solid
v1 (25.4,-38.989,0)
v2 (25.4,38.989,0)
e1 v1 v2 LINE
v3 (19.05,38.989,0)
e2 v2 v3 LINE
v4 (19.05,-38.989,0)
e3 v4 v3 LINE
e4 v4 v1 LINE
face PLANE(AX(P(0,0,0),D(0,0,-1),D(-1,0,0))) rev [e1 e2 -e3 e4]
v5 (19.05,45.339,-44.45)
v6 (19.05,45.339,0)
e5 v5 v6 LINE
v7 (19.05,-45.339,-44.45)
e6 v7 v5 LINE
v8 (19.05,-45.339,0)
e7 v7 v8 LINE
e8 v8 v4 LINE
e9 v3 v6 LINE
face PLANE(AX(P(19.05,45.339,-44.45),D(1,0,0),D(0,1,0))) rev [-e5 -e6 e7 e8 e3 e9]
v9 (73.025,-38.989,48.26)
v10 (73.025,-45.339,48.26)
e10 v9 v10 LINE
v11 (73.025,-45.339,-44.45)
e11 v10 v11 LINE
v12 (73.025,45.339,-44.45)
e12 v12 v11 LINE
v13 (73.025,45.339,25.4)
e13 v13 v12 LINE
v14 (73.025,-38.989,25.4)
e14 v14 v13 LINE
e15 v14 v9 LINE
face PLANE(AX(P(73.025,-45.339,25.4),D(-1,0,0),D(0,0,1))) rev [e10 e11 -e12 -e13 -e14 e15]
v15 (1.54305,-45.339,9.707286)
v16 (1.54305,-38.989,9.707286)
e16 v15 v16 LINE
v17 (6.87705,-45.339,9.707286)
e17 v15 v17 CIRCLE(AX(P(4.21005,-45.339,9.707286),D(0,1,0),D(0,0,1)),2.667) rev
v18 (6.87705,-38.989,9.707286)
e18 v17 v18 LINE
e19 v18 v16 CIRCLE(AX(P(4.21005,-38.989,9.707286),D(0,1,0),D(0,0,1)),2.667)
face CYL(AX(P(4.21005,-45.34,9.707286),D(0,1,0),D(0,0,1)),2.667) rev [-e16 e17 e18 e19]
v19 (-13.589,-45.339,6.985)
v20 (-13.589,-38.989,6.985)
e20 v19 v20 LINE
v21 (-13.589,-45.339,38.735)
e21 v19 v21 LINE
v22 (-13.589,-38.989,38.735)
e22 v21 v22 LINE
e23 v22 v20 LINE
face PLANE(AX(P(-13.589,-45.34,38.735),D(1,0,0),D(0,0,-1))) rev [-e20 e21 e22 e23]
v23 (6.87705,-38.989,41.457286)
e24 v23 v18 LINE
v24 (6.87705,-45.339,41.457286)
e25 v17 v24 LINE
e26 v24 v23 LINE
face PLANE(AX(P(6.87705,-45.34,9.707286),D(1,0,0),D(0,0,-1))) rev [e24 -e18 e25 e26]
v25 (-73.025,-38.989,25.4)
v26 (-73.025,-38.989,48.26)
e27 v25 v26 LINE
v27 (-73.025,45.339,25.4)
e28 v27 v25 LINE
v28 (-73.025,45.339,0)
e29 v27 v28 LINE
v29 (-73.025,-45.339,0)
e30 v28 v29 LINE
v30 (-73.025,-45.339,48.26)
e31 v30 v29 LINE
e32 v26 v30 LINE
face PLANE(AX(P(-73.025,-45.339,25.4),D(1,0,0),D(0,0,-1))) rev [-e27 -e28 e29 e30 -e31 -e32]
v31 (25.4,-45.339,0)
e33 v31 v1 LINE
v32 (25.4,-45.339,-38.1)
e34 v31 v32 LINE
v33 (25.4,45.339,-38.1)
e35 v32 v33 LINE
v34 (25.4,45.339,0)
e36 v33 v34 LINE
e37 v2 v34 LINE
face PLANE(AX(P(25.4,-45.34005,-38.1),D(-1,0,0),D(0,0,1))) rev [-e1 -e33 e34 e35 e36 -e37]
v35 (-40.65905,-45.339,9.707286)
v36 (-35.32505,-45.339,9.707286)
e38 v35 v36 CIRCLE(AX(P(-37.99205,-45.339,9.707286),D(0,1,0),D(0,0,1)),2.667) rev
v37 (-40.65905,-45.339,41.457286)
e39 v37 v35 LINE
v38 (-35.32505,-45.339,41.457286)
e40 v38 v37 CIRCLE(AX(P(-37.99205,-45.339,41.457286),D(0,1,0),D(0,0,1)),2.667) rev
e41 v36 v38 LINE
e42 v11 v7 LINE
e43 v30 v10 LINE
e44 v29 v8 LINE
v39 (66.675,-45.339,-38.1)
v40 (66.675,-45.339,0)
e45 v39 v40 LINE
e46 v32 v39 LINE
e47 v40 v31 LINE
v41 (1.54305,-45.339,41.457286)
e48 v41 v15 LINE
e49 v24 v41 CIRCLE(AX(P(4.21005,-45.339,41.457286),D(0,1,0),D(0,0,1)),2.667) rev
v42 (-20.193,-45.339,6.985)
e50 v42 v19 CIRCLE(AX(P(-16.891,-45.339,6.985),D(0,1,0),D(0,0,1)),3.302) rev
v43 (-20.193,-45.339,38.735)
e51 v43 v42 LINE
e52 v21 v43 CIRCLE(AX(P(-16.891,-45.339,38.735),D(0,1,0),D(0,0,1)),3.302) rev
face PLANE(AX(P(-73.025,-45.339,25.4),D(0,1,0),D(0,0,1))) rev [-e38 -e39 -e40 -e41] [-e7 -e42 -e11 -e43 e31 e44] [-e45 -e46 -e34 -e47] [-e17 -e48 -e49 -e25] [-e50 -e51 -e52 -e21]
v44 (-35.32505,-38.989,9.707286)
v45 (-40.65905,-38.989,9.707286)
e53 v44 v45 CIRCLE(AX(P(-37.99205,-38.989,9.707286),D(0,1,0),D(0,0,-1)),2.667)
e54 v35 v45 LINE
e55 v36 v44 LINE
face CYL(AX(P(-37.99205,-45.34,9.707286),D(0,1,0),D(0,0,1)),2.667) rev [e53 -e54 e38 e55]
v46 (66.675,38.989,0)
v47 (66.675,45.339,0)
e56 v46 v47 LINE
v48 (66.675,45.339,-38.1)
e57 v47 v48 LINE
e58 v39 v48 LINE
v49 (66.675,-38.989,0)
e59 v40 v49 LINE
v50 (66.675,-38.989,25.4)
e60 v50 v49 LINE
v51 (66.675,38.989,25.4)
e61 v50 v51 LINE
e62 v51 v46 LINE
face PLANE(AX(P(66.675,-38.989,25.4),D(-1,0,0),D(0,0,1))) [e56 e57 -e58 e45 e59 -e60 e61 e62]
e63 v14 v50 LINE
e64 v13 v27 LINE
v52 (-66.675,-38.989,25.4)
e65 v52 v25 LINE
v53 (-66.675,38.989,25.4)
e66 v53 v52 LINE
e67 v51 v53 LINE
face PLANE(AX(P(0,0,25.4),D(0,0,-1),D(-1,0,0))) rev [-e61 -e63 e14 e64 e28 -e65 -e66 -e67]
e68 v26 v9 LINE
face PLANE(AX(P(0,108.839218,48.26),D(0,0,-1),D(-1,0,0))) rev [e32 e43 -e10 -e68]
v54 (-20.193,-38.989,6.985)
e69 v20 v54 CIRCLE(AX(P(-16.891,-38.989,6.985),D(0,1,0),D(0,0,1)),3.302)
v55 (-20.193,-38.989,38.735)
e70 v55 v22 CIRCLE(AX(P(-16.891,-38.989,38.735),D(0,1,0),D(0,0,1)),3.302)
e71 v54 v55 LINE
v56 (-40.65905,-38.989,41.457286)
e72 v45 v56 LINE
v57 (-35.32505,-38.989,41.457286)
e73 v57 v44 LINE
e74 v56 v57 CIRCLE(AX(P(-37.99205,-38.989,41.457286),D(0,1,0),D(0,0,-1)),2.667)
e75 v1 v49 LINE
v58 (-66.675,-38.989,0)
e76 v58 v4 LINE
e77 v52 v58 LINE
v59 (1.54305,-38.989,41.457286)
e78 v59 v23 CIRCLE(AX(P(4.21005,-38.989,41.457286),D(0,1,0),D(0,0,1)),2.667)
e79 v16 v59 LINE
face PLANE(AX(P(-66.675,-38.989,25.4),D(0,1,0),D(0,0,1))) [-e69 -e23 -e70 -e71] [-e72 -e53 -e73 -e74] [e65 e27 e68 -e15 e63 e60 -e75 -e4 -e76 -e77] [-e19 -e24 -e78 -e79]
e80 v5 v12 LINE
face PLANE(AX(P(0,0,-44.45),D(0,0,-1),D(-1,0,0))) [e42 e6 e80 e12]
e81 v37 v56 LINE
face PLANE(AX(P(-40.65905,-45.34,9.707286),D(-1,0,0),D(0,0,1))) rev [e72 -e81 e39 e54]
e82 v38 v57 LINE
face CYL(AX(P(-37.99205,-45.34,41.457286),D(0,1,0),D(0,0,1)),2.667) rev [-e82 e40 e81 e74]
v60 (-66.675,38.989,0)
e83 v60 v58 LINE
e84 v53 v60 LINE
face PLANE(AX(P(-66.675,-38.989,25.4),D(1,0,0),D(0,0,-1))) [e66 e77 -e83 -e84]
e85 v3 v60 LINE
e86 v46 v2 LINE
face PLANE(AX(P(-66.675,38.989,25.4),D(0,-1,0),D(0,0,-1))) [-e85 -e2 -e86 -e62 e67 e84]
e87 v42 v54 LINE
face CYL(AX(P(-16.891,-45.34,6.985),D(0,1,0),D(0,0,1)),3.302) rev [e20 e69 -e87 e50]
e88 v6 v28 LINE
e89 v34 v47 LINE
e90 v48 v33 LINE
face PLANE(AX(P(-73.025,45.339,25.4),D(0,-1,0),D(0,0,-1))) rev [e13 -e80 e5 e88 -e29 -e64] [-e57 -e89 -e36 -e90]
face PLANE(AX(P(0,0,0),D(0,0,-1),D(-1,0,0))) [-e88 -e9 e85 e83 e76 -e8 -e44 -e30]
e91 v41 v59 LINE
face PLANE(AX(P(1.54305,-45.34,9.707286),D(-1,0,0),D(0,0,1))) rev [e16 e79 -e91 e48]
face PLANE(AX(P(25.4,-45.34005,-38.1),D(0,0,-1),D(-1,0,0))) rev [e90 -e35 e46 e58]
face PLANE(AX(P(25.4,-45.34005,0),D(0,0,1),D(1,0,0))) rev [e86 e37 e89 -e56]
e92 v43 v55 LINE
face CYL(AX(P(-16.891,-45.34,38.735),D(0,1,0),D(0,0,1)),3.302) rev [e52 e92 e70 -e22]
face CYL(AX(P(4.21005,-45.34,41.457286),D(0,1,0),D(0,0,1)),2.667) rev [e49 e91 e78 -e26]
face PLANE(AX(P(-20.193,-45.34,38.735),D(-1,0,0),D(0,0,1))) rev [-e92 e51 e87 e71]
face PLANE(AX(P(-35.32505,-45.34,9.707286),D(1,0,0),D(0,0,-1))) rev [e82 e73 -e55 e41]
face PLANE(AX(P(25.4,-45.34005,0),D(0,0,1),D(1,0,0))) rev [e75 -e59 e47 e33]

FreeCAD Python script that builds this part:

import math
import FreeCAD as App
import Part
import Sketcher
from FreeCAD import Vector
Q = App.Units.Quantity

doc = App.newDocument("Part")
body = doc.addObject("PartDesign::Body", "Body")

sketch1 = doc.addObject("Sketcher::SketchObject", "Sketch")
body.addObject(sketch1)
sketch1.AttachmentSupport = (doc.XY_Plane, [""])
sketch1.MapMode = "FlatFace"
sketch1.addGeometry(Part.LineSegment(Vector(-73.025, 45.339, 0), Vector(-73.025, -45.339, 0)), False)
sketch1.addGeometry(Part.LineSegment(Vector(-73.025, -45.339, 0), Vector(73.025, -45.339, 0)), False)
sketch1.addGeometry(Part.LineSegment(Vector(73.025, -45.339, 0), Vector(73.025, 45.339, 0)), False)
sketch1.addGeometry(Part.LineSegment(Vector(73.025, 45.339, 0), Vector(-73.025, 45.339, 0)), False)
sketch1.addGeometry(Part.LineSegment(Vector(66.675, -38.989, 0), Vector(-66.675, -38.989, 0)), False)
sketch1.addGeometry(Part.LineSegment(Vector(-66.675, -38.989, 0), Vector(-66.675, 38.989, 0)), False)
sketch1.addGeometry(Part.LineSegment(Vector(-66.675, 38.989, 0), Vector(66.675, 38.989, 0)), False)
sketch1.addGeometry(Part.LineSegment(Vector(66.675, 38.989, 0), Vector(66.675, -38.989, 0)), False)
sketch1.addConstraint(Sketcher.Constraint("Coincident", 0, 2, 1, 1))
sketch1.addConstraint(Sketcher.Constraint("Coincident", 1, 2, 2, 1))
sketch1.addConstraint(Sketcher.Constraint("Coincident", 2, 2, 3, 1))
sketch1.addConstraint(Sketcher.Constraint("Coincident", 3, 2, 0, 1))
sketch1.addConstraint(Sketcher.Constraint("Coincident", 4, 2, 5, 1))
sketch1.addConstraint(Sketcher.Constraint("Coincident", 5, 2, 6, 1))
sketch1.addConstraint(Sketcher.Constraint("Coincident", 6, 2, 7, 1))
sketch1.addConstraint(Sketcher.Constraint("Coincident", 7, 2, 4, 1))
sketch1.addConstraint(Sketcher.Constraint("Vertical", 0))
sketch1.addConstraint(Sketcher.Constraint("Horizontal", 1))
sketch1.addConstraint(Sketcher.Constraint("Vertical", 2))
sketch1.addConstraint(Sketcher.Constraint("Horizontal", 3))
sketch1.addConstraint(Sketcher.Constraint("Horizontal", 4))
sketch1.addConstraint(Sketcher.Constraint("Vertical", 5))
sketch1.addConstraint(Sketcher.Constraint("Horizontal", 6))
sketch1.addConstraint(Sketcher.Constraint("Vertical", 7))
sketch1.addConstraint(Sketcher.Constraint("Symmetric", 0, 2, 2, 2, -1, 1))
sketch1.addConstraint(Sketcher.Constraint("Symmetric", 4, 2, 6, 2, -1, 1))
sketch1.addConstraint(Sketcher.Constraint("DistanceX", 1, 1, 1, 2, Q("5.75 in")))
sketch1.addConstraint(Sketcher.Constraint("DistanceX", 4, 2, 4, 1, Q("5.25 in")))
sketch1.addConstraint(Sketcher.Constraint("DistanceY", 0, 2, 0, 1, Q("3.57 in")))
sketch1.addConstraint(Sketcher.Constraint("DistanceY", 5, 1, 5, 2, Q("3.07 in")))
pad1 = doc.addObject("PartDesign::Pad", "Pad")
body.addObject(pad1)
pad1.Profile = sketch1
pad1.Length = Q("1 in")

sketch2 = doc.addObject("Sketcher::SketchObject", "Sketch001")
body.addObject(sketch2)
sketch2.AttachmentSupport = (doc.XZ_Plane, [""])
sketch2.MapMode = "FlatFace"
sketch2.AttachmentOffset = App.Placement(Vector(0, 0, 1.785 * 25.4), App.Rotation())
sketch2.addGeometry(Part.LineSegment(Vector(73.025, 25.4, 0), Vector(-73.025, 25.4, 0)), False)
sketch2.addGeometry(Part.LineSegment(Vector(-73.025, 25.4, 0), Vector(-73.025, 48.26, 0)), False)
sketch2.addGeometry(Part.LineSegment(Vector(-73.025, 48.26, 0), Vector(73.025, 48.26, 0)), False)
sketch2.addGeometry(Part.LineSegment(Vector(73.025, 48.26, 0), Vector(73.025, 25.4, 0)), False)
sketch2.addConstraint(Sketcher.Constraint("Coincident", 0, 2, 1, 1))
sketch2.addConstraint(Sketcher.Constraint("Coincident", 1, 2, 2, 1))
sketch2.addConstraint(Sketcher.Constraint("Coincident", 2, 2, 3, 1))
sketch2.addConstraint(Sketcher.Constraint("Coincident", 3, 2, 0, 1))
sketch2.addConstraint(Sketcher.Constraint("Horizontal", 0))
sketch2.addConstraint(Sketcher.Constraint("Vertical", 1))
sketch2.addConstraint(Sketcher.Constraint("Horizontal", 2))
sketch2.addConstraint(Sketcher.Constraint("Vertical", 3))
sketch2.addConstraint(Sketcher.Constraint("DistanceY", 1, 1, 1, 2, Q("0.9 in")))
sketch2.addConstraint(Sketcher.Constraint("DistanceY", -1, 1, 0, 2, Q("1 in")))
sketch2.addConstraint(Sketcher.Constraint("DistanceX", 0, 2, 0, 1, Q("5.75 in")))
sketch2.addConstraint(Sketcher.Constraint("DistanceX", 0, 2, -1, 1, Q("2.875 in")))
pad2 = doc.addObject("PartDesign::Pad", "Pad001")
body.addObject(pad2)
pad2.Profile = sketch2
pad2.Length = Q("0.25 in")
pad2.Reversed = True

sketch3 = doc.addObject("Sketcher::SketchObject", "Sketch002")
body.addObject(sketch3)
sketch3.AttachmentSupport = (doc.XZ_Plane, [""])
sketch3.MapMode = "FlatFace"
sketch3.AttachmentOffset = App.Placement(Vector(0, 0, 1.535 * 25.4), App.Rotation())
sketch3.addGeometry(Part.LineSegment(Vector(-20.193, 6.985, 0), Vector(-20.193, 38.735, 0)), False)
sketch3.addGeometry(Part.ArcOfCircle(Part.Circle(Vector(-16.891, 38.735, 0), Vector(0, 0, 1), 3.302), math.radians(0), math.radians(180)), False)
sketch3.addGeometry(Part.LineSegment(Vector(-13.589, 38.735, 0), Vector(-13.589, 6.985, 0)), False)
sketch3.addGeometry(Part.ArcOfCircle(Part.Circle(Vector(-16.891, 6.985, 0), Vector(0, 0, 1), 3.302), math.radians(180), math.radians(360)), False)
sketch3.addConstraint(Sketcher.Constraint("Tangent", 0, 2, 1, 2))
sketch3.addConstraint(Sketcher.Constraint("Tangent", 1, 1, 2, 1))
sketch3.addConstraint(Sketcher.Constraint("Tangent", 2, 2, 3, 2))
sketch3.addConstraint(Sketcher.Constraint("Tangent", 3, 1, 0, 1))
sketch3.addConstraint(Sketcher.Constraint("Vertical", 0))
sketch3.addConstraint(Sketcher.Constraint("Vertical", 2))
sketch3.addConstraint(Sketcher.Constraint("Radius", 1, Q("0.13 in")))
sketch3.addConstraint(Sketcher.Constraint("DistanceY", 0, 1, 0, 2, Q("1.25 in")))
sketch3.addConstraint(Sketcher.Constraint("DistanceX", 1, 3, -1, 1, Q("0.665 in")))
sketch3.addConstraint(Sketcher.Constraint("DistanceY", -1, 1, 1, 3, Q("1.525 in")))
pocket1 = doc.addObject("PartDesign::Pocket", "Pocket")
body.addObject(pocket1)
pocket1.Profile = sketch3
pocket1.Type = "UpToFirst"
pocket1.Reversed = True

sketch4 = doc.addObject("Sketcher::SketchObject", "Sketch003")
body.addObject(sketch4)
sketch4.AttachmentSupport = (doc.XZ_Plane, [""])
sketch4.MapMode = "FlatFace"
sketch4.AttachmentOffset = App.Placement(Vector(0, 0, 1.535 * 25.4), App.Rotation())
sketch4.addGeometry(Part.LineSegment(Vector(6.87705, 41.457286, 0), Vector(6.87705, 9.707286, 0)), False)
sketch4.addGeometry(Part.ArcOfCircle(Part.Circle(Vector(4.21005, 9.707286, 0), Vector(0, 0, 1), 2.667), math.radians(180), math.radians(360)), False)
sketch4.addGeometry(Part.LineSegment(Vector(1.54305, 9.707286, 0), Vector(1.54305, 41.457286, 0)), False)
sketch4.addGeometry(Part.ArcOfCircle(Part.Circle(Vector(4.21005, 41.457286, 0), Vector(0, 0, 1), 2.667), math.radians(0), math.radians(180)), False)
sketch4.addConstraint(Sketcher.Constraint("Tangent", 0, 2, 1, 2))
sketch4.addConstraint(Sketcher.Constraint("Tangent", 1, 1, 2, 1))
sketch4.addConstraint(Sketcher.Constraint("Tangent", 2, 2, 3, 2))
sketch4.addConstraint(Sketcher.Constraint("Tangent", 3, 1, 0, 1))
sketch4.addConstraint(Sketcher.Constraint("Vertical", 0))
sketch4.addConstraint(Sketcher.Constraint("Vertical", 2))
sketch4.addConstraint(Sketcher.Constraint("Radius", 1, Q("0.105 in")))
sketch4.addConstraint(Sketcher.Constraint("DistanceY", 0, 2, 0, 1, Q("1.25 in")))
sketch4.addConstraint(Sketcher.Constraint("DistanceX", -1, 1, 1, 3, Q("4.21005 mm")))
sketch4.addConstraint(Sketcher.Constraint("DistanceY", -1, 1, 1, 3, Q("9.707286 mm")))
pocket2 = doc.addObject("PartDesign::Pocket", "Pocket001")
body.addObject(pocket2)
pocket2.Profile = sketch4
pocket2.Type = "UpToFirst"
pocket2.Reversed = True

sketch5 = doc.addObject("Sketcher::SketchObject", "Sketch004")
body.addObject(sketch5)
sketch5.AttachmentSupport = (doc.XZ_Plane, [""])
sketch5.MapMode = "FlatFace"
sketch5.AttachmentOffset = App.Placement(Vector(0, 0, 1.535 * 25.4), App.Rotation())
sketch5.addGeometry(Part.LineSegment(Vector(-40.65905, 9.707286, 0), Vector(-40.65905, 41.457286, 0)), False)
sketch5.addGeometry(Part.ArcOfCircle(Part.Circle(Vector(-37.99205, 41.457286, 0), Vector(0, 0, 1), 2.667), math.radians(0), math.radians(180)), False)
sketch5.addGeometry(Part.LineSegment(Vector(-35.32505, 41.457286, 0), Vector(-35.32505, 9.707286, 0)), False)
sketch5.addGeometry(Part.ArcOfCircle(Part.Circle(Vector(-37.99205, 9.707286, 0), Vector(0, 0, 1), 2.667), math.radians(180), math.radians(360)), False)
sketch5.addConstraint(Sketcher.Constraint("Tangent", 0, 2, 1, 2))
sketch5.addConstraint(Sketcher.Constraint("Tangent", 1, 1, 2, 1))
sketch5.addConstraint(Sketcher.Constraint("Tangent", 2, 2, 3, 2))
sketch5.addConstraint(Sketcher.Constraint("Tangent", 3, 1, 0, 1))
sketch5.addConstraint(Sketcher.Constraint("Vertical", 0))
sketch5.addConstraint(Sketcher.Constraint("Vertical", 2))
sketch5.addConstraint(Sketcher.Constraint("Radius", 1, Q("0.105 in")))
sketch5.addConstraint(Sketcher.Constraint("DistanceY", 0, 1, 0, 2, Q("1.25 in")))
sketch5.addConstraint(Sketcher.Constraint("DistanceX", 1, 3, -1, 1, Q("37.99205 mm")))
sketch5.addConstraint(Sketcher.Constraint("DistanceY", -1, 1, 1, 3, Q("41.457286 mm")))
pocket3 = doc.addObject("PartDesign::Pocket", "Pocket002")
body.addObject(pocket3)
pocket3.Profile = sketch5
pocket3.Type = "UpToFirst"
pocket3.Reversed = True

sketch6 = doc.addObject("Sketcher::SketchObject", "Sketch005")
body.addObject(sketch6)
sketch6.AttachmentSupport = (doc.XY_Plane, [""])
sketch6.MapMode = "FlatFace"
sketch6.addGeometry(Part.LineSegment(Vector(73.025, 45.339, 0), Vector(73.025, -45.339, 0)), False)
sketch6.addGeometry(Part.LineSegment(Vector(73.025, -45.339, 0), Vector(19.05, -45.339, 0)), False)
sketch6.addGeometry(Part.LineSegment(Vector(19.05, -45.339, 0), Vector(19.05, 45.339, 0)), False)
sketch6.addGeometry(Part.LineSegment(Vector(19.05, 45.339, 0), Vector(73.025, 45.339, 0)), False)
sketch6.addConstraint(Sketcher.Constraint("Coincident", 0, 2, 1, 1))
sketch6.addConstraint(Sketcher.Constraint("Coincident", 1, 2, 2, 1))
sketch6.addConstraint(Sketcher.Constraint("Coincident", 2, 2, 3, 1))
sketch6.addConstraint(Sketcher.Constraint("Coincident", 3, 2, 0, 1))
sketch6.addConstraint(Sketcher.Constraint("Vertical", 0))
sketch6.addConstraint(Sketcher.Constraint("Horizontal", 1))
sketch6.addConstraint(Sketcher.Constraint("Vertical", 2))
sketch6.addConstraint(Sketcher.Constraint("Horizontal", 3))
sketch6.addConstraint(Sketcher.Constraint("DistanceY", 0, 2, 0, 1, Q("3.57 in")))
sketch6.addConstraint(Sketcher.Constraint("DistanceX", 1, 2, 1, 1, Q("2.125 in")))
sketch6.addConstraint(Sketcher.Constraint("DistanceX", -1, 1, 1, 2, Q("0.75 in")))
sketch6.addConstraint(Sketcher.Constraint("DistanceY", 0, 2, -1, 1, Q("1.785 in")))
pad3 = doc.addObject("PartDesign::Pad", "Pad002")
body.addObject(pad3)
pad3.Profile = sketch6
pad3.Length = Q("1.75 in")
pad3.Reversed = True

sketch7 = doc.addObject("Sketcher::SketchObject", "Sketch006")
body.addObject(sketch7)
sketch7.AttachmentSupport = (doc.XZ_Plane, [""])
sketch7.MapMode = "FlatFace"
sketch7.AttachmentOffset = App.Placement(Vector(0, 0, -1.785 * 25.4), App.Rotation())
sketch7.addGeometry(Part.LineSegment(Vector(25.4, -38.1, 0), Vector(25.4, 0, 0)), False)
sketch7.addGeometry(Part.LineSegment(Vector(25.4, 0, 0), Vector(66.675, 0, 0)), False)
sketch7.addGeometry(Part.LineSegment(Vector(66.675, 0, 0), Vector(66.675, -38.1, 0)), False)
sketch7.addGeometry(Part.LineSegment(Vector(66.675, -38.1, 0), Vector(25.4, -38.1, 0)), False)
sketch7.addConstraint(Sketcher.Constraint("Coincident", 0, 2, 1, 1))
sketch7.addConstraint(Sketcher.Constraint("Coincident", 1, 2, 2, 1))
sketch7.addConstraint(Sketcher.Constraint("Coincident", 2, 2, 3, 1))
sketch7.addConstraint(Sketcher.Constraint("Coincident", 3, 2, 0, 1))
sketch7.addConstraint(Sketcher.Constraint("Vertical", 0))
sketch7.addConstraint(Sketcher.Constraint("Horizontal", 1))
sketch7.addConstraint(Sketcher.Constraint("Vertical", 2))
sketch7.addConstraint(Sketcher.Constraint("Horizontal", 3))
sketch7.addConstraint(Sketcher.Constraint("PointOnObject", 0, 2, -1))
sketch7.addConstraint(Sketcher.Constraint("DistanceY", 0, 1, 0, 2, Q("1.5 in")))
sketch7.addConstraint(Sketcher.Constraint("DistanceX", -1, 1, 0, 2, Q("1 in")))
sketch7.addConstraint(Sketcher.Constraint("DistanceX", 1, 1, 1, 2, Q("1.625 in")))
pocket4 = doc.addObject("PartDesign::Pocket", "Pocket003")
body.addObject(pocket4)
pocket4.Profile = sketch7
pocket4.Type = "UpToFirst"
pocket4.Reversed = True

doc.recompute()
